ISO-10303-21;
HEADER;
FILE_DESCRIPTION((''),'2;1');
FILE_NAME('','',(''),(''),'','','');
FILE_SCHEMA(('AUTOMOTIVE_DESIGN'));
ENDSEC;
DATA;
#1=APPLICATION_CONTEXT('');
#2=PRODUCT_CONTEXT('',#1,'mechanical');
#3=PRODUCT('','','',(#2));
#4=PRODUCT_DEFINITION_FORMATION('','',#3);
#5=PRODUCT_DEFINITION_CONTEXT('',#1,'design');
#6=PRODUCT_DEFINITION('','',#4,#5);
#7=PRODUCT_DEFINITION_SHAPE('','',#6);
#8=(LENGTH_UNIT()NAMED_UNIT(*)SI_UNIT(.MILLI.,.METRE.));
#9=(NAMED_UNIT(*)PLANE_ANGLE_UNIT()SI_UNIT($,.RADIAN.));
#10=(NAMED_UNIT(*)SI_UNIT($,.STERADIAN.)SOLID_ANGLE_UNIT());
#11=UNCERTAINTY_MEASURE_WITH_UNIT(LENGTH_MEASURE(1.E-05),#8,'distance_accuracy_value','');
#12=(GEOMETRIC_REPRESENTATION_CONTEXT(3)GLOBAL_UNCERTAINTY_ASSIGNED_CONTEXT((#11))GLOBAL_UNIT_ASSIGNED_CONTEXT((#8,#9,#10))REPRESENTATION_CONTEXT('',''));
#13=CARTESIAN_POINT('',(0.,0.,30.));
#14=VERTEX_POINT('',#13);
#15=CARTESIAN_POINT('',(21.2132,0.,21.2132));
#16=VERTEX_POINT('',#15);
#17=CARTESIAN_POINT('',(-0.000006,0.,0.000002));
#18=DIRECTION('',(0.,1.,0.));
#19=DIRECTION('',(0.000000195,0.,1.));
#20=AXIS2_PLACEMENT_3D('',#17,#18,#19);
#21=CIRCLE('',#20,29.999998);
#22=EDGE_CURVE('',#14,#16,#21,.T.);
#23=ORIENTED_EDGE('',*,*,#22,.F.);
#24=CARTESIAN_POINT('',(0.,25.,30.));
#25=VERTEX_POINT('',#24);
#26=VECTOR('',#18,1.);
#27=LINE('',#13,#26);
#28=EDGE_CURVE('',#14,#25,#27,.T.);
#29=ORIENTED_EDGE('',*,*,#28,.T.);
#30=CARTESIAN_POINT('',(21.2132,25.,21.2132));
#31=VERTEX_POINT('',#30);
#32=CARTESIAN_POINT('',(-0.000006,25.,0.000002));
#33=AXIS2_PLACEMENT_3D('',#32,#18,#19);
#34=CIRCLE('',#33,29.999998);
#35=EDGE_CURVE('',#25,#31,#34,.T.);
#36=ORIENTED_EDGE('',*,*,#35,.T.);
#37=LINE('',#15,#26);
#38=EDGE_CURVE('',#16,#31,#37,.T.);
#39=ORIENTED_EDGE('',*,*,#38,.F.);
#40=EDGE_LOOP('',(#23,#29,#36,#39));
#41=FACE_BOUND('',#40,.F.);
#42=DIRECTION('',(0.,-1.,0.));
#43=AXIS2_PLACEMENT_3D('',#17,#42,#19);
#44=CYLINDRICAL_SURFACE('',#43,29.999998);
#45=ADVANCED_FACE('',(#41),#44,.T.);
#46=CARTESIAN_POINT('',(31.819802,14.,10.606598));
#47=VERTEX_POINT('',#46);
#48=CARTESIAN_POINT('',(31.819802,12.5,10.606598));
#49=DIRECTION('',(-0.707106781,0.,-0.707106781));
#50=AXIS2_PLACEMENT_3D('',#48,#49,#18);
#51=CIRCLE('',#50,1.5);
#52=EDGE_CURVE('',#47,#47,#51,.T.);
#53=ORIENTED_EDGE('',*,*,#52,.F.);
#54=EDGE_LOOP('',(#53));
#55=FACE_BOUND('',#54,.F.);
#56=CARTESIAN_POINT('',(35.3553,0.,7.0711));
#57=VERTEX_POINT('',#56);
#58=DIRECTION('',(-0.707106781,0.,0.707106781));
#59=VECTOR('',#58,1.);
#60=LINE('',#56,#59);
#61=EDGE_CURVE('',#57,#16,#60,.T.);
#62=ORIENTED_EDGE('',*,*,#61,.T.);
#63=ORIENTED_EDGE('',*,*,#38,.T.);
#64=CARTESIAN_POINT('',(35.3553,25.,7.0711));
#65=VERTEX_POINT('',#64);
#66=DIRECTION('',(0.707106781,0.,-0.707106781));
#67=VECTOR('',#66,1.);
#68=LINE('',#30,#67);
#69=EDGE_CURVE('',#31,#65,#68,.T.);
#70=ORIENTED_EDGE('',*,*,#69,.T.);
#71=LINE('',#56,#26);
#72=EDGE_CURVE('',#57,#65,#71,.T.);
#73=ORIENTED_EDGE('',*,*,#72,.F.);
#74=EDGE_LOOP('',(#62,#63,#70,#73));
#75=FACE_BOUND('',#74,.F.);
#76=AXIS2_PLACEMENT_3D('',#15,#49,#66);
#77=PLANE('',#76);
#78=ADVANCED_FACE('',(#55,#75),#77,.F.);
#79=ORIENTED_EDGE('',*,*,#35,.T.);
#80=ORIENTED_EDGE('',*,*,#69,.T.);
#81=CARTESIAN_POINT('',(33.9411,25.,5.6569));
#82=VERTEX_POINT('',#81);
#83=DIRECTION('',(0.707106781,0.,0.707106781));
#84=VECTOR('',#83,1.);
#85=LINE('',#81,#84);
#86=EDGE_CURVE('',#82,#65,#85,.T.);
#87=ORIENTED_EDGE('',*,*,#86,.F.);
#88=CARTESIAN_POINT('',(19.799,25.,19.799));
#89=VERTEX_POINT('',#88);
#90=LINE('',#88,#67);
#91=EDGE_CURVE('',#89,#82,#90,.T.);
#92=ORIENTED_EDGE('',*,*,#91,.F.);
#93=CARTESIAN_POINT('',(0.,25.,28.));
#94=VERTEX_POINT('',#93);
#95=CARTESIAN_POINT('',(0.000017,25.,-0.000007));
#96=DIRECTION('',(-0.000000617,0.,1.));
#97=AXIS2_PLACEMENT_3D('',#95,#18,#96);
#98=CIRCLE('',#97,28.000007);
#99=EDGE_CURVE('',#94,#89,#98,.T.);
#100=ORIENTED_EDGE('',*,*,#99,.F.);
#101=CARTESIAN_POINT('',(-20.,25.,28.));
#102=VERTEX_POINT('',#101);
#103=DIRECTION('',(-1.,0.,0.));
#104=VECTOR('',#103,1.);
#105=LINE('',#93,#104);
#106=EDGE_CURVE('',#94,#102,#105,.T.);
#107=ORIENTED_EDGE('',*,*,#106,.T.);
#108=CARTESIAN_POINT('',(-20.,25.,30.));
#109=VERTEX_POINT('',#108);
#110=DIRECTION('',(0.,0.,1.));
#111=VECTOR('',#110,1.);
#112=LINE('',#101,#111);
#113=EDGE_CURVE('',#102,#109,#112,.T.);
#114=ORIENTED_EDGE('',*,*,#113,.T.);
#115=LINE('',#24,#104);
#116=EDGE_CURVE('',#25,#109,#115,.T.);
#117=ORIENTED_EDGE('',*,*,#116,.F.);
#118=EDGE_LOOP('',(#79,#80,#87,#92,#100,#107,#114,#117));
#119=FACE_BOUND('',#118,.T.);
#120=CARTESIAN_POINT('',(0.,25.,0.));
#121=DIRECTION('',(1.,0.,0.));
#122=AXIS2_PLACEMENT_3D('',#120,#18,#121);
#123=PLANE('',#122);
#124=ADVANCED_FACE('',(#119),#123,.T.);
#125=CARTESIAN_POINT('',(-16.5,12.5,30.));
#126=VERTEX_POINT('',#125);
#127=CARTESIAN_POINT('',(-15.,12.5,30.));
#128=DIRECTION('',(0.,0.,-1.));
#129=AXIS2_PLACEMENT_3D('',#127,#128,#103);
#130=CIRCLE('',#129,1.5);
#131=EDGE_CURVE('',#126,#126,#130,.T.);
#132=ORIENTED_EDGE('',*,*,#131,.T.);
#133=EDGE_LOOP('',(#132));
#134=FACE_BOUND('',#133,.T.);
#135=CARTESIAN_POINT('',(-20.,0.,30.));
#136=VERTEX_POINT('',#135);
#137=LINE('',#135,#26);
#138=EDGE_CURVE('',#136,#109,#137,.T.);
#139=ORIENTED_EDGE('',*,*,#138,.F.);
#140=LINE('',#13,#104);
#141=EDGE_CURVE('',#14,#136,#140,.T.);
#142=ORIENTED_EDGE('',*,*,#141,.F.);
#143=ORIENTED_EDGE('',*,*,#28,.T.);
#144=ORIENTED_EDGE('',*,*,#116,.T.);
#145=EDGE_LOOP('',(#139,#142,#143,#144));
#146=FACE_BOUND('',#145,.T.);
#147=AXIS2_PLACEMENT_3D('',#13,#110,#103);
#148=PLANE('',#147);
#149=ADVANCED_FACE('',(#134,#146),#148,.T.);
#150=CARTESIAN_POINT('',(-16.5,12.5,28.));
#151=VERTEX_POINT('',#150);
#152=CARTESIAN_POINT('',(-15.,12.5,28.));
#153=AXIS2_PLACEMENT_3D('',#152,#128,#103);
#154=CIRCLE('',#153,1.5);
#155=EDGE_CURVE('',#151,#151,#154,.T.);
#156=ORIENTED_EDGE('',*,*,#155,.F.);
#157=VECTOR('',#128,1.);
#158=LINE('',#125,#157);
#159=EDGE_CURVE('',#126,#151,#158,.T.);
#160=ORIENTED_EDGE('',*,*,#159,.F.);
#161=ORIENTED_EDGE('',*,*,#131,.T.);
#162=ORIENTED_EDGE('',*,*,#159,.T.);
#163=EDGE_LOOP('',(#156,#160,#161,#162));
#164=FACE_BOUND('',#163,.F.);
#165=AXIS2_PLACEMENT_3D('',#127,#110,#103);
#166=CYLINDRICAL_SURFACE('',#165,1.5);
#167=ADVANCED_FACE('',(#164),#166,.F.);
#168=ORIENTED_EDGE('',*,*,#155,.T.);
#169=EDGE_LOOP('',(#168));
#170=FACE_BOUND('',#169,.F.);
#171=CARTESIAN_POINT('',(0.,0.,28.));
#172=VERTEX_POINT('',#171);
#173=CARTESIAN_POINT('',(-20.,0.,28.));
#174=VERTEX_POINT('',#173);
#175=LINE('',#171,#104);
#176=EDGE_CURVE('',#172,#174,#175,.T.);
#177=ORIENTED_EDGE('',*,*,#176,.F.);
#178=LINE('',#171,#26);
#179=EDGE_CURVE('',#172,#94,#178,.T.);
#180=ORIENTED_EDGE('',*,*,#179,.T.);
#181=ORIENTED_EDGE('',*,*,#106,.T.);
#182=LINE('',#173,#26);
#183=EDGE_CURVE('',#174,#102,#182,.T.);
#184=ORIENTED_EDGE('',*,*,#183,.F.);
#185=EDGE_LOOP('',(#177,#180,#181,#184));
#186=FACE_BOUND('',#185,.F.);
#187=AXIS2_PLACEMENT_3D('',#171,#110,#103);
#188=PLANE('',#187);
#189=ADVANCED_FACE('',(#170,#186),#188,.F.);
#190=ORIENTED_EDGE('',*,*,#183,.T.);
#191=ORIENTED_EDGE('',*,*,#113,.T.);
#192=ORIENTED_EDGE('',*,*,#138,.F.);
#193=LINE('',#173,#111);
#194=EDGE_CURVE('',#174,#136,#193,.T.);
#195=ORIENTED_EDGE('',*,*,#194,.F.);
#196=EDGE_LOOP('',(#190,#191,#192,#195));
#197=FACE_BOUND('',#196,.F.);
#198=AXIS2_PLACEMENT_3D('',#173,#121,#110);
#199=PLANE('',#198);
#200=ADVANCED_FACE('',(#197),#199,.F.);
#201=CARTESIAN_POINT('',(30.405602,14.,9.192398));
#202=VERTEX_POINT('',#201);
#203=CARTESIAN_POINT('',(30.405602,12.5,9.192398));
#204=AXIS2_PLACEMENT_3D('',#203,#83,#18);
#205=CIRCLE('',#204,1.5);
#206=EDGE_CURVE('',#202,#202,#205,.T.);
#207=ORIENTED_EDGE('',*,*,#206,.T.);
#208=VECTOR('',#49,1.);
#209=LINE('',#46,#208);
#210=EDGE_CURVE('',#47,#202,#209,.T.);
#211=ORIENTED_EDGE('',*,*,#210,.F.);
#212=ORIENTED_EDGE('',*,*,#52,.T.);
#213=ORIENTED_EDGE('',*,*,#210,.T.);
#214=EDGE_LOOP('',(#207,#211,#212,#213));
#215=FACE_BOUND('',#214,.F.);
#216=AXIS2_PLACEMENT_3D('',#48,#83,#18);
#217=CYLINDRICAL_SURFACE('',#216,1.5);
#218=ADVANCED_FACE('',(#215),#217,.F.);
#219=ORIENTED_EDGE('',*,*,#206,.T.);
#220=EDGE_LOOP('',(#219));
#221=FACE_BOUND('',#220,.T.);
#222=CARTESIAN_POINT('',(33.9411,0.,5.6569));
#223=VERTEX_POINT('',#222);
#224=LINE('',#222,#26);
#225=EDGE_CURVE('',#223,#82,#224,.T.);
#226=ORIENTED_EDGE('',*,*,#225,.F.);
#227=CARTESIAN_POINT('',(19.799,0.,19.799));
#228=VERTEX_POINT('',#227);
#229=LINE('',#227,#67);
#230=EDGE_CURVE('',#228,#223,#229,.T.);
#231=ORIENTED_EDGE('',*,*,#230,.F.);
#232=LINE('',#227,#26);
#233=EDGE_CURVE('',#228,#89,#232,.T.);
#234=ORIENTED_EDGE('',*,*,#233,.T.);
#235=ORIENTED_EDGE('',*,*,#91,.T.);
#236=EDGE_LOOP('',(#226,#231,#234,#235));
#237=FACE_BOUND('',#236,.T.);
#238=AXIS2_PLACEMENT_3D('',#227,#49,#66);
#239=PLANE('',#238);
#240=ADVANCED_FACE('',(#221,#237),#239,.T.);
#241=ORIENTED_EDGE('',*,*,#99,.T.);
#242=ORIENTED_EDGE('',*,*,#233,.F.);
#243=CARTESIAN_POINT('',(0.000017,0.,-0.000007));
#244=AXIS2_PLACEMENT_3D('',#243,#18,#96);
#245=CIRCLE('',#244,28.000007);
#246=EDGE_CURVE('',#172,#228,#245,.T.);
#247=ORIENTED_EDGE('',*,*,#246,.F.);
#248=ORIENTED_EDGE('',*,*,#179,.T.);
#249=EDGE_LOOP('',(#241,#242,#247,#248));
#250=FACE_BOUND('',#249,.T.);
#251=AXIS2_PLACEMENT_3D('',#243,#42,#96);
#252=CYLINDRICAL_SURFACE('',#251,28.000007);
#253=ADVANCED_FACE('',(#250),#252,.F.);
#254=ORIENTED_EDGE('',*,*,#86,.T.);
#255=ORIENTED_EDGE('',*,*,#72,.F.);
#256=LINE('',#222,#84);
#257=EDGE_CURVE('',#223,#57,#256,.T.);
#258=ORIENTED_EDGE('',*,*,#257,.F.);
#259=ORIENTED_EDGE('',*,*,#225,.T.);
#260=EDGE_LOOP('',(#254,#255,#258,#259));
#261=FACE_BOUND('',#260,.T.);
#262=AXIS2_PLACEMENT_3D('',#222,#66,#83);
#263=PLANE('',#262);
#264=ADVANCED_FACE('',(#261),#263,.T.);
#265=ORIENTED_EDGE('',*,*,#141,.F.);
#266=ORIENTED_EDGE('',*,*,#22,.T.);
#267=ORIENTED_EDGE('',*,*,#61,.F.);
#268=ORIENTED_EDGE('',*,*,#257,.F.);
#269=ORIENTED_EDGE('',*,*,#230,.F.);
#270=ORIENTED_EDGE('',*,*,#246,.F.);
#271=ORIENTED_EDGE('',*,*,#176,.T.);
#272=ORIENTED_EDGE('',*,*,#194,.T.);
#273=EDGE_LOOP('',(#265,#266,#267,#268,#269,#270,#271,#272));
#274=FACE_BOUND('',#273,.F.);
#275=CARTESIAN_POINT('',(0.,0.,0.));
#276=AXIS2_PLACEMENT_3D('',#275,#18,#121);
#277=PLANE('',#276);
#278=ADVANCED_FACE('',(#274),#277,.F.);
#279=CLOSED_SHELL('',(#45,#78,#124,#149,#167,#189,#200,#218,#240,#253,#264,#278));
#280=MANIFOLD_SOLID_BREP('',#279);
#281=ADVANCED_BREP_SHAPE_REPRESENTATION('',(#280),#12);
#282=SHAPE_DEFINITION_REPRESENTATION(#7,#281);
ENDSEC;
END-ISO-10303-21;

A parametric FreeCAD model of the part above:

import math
import FreeCAD as App
import Part
import Sketcher

V = App.Vector
Q = App.Units.Quantity

doc = App.newDocument("Part")
body = doc.addObject("PartDesign::Body", "Body")

# Sketch on XZ plane
sketch1 = body.newObject("Sketcher::SketchObject", "Sketch")
sketch1.AttachmentSupport = (doc.getObject("XZ_Plane"), [""])
sketch1.MapMode = "FlatFace"
sketch1.addGeometry([
    Part.LineSegment(V(-20, 30, 0), V(0, 30, 0)),  # 0
    Part.ArcOfCircle(Part.Circle(V(0, 0, 0), V(0, 0, 1), 30), math.radians(45), math.radians(90)),  # 1
    Part.LineSegment(V(21.2, 21.2, 0), V(35.4, 7.1, 0)),  # 2
    Part.LineSegment(V(35.4, 7.1, 0), V(33.9, 5.7, 0)),  # 3
    Part.LineSegment(V(33.9, 5.7, 0), V(19.8, 19.8, 0)),  # 4
    Part.ArcOfCircle(Part.Circle(V(0, 0, 0), V(0, 0, 1), 28), math.radians(45), math.radians(90)),  # 5
    Part.LineSegment(V(0, 28, 0), V(-20, 28, 0)),  # 6
    Part.LineSegment(V(-20, 28, 0), V(-20, 30, 0)),  # 7
], False)
sketch1.addConstraint([
    Sketcher.Constraint("Tangent", 0, 2, 1, 2),
    Sketcher.Constraint("Tangent", 1, 1, 2, 1),
    Sketcher.Constraint("Coincident", 2, 2, 3, 1),
    Sketcher.Constraint("Coincident", 3, 2, 4, 1),
    Sketcher.Constraint("Tangent", 4, 2, 5, 1),
    Sketcher.Constraint("Tangent", 5, 2, 6, 1),
    Sketcher.Constraint("Coincident", 6, 2, 7, 1),
    Sketcher.Constraint("Coincident", 7, 2, 0, 1),
    Sketcher.Constraint("Horizontal", 0),
    Sketcher.Constraint("Horizontal", 6),
    Sketcher.Constraint("Vertical", 7),
    Sketcher.Constraint("Coincident", 1, 3, -1, 1),
    Sketcher.Constraint("Coincident", 5, 3, -1, 1),
    Sketcher.Constraint("Perpendicular", 2, 3),
    Sketcher.Constraint("Perpendicular", 3, 4),
    Sketcher.Constraint("Radius", 1, Q("30 mm")),
    Sketcher.Constraint("DistanceX", 0, 1, 0, 2, Q("20 mm")),
    Sketcher.Constraint("DistanceY", 7, 1, 7, 2, Q("2 mm")),
    Sketcher.Constraint("Angle", 2, Q("-45 deg")),
    Sketcher.Constraint("Distance", 2, Q("20 mm")),
])
pad1 = body.newObject("PartDesign::Pad", "Pad")
pad1.Profile = sketch1
pad1.Length = 25
pad1.Reversed = True

# Sketch on XY plane
sketch2 = body.newObject("Sketcher::SketchObject", "Sketch001")
sketch2.AttachmentSupport = (doc.getObject("XY_Plane"), [""])
sketch2.MapMode = "FlatFace"
sketch2.AttachmentOffset = App.Placement(V(0, 0, 30), App.Rotation())
sketch2.addGeometry(Part.Circle(V(-15, 12.5, 0), V(0, 0, 1), 1.5), False)
sketch2.addConstraint([
    Sketcher.Constraint("Diameter", 0, Q("3 mm")),
    Sketcher.Constraint("DistanceX", 0, 3, -1, 1, Q("15 mm")),
    Sketcher.Constraint("DistanceY", -1, 1, 0, 3, Q("12.5 mm")),
])
pocket1 = body.newObject("PartDesign::Pocket", "Pocket")
pocket1.Profile = sketch2
pocket1.Length = 6

# Sketch on an angled plane
sketch3 = body.newObject("Sketcher::SketchObject", "Sketch002")
sketch3.Placement = App.Placement(V(21.2132, 0, 21.2132), App.Rotation(V(0, 1, 0), V(-0.707106781, 0, 0.707106781), V(0.707106781, 0, 0.707106781), "ZXY"))
sketch3.addGeometry(Part.Circle(V(12.5, -15, 0), V(0, 0, 1), 1.5), False)
sketch3.addConstraint([
    Sketcher.Constraint("Diameter", 0, Q("3 mm")),
    Sketcher.Constraint("DistanceY", 0, 3, -1, 1, Q("15 mm")),
    Sketcher.Constraint("DistanceX", -1, 1, 0, 3, Q("12.5 mm")),
])
pocket2 = body.newObject("PartDesign::Pocket", "Pocket001")
pocket2.Profile = sketch3
pocket2.Length = 8

doc.recompute()
